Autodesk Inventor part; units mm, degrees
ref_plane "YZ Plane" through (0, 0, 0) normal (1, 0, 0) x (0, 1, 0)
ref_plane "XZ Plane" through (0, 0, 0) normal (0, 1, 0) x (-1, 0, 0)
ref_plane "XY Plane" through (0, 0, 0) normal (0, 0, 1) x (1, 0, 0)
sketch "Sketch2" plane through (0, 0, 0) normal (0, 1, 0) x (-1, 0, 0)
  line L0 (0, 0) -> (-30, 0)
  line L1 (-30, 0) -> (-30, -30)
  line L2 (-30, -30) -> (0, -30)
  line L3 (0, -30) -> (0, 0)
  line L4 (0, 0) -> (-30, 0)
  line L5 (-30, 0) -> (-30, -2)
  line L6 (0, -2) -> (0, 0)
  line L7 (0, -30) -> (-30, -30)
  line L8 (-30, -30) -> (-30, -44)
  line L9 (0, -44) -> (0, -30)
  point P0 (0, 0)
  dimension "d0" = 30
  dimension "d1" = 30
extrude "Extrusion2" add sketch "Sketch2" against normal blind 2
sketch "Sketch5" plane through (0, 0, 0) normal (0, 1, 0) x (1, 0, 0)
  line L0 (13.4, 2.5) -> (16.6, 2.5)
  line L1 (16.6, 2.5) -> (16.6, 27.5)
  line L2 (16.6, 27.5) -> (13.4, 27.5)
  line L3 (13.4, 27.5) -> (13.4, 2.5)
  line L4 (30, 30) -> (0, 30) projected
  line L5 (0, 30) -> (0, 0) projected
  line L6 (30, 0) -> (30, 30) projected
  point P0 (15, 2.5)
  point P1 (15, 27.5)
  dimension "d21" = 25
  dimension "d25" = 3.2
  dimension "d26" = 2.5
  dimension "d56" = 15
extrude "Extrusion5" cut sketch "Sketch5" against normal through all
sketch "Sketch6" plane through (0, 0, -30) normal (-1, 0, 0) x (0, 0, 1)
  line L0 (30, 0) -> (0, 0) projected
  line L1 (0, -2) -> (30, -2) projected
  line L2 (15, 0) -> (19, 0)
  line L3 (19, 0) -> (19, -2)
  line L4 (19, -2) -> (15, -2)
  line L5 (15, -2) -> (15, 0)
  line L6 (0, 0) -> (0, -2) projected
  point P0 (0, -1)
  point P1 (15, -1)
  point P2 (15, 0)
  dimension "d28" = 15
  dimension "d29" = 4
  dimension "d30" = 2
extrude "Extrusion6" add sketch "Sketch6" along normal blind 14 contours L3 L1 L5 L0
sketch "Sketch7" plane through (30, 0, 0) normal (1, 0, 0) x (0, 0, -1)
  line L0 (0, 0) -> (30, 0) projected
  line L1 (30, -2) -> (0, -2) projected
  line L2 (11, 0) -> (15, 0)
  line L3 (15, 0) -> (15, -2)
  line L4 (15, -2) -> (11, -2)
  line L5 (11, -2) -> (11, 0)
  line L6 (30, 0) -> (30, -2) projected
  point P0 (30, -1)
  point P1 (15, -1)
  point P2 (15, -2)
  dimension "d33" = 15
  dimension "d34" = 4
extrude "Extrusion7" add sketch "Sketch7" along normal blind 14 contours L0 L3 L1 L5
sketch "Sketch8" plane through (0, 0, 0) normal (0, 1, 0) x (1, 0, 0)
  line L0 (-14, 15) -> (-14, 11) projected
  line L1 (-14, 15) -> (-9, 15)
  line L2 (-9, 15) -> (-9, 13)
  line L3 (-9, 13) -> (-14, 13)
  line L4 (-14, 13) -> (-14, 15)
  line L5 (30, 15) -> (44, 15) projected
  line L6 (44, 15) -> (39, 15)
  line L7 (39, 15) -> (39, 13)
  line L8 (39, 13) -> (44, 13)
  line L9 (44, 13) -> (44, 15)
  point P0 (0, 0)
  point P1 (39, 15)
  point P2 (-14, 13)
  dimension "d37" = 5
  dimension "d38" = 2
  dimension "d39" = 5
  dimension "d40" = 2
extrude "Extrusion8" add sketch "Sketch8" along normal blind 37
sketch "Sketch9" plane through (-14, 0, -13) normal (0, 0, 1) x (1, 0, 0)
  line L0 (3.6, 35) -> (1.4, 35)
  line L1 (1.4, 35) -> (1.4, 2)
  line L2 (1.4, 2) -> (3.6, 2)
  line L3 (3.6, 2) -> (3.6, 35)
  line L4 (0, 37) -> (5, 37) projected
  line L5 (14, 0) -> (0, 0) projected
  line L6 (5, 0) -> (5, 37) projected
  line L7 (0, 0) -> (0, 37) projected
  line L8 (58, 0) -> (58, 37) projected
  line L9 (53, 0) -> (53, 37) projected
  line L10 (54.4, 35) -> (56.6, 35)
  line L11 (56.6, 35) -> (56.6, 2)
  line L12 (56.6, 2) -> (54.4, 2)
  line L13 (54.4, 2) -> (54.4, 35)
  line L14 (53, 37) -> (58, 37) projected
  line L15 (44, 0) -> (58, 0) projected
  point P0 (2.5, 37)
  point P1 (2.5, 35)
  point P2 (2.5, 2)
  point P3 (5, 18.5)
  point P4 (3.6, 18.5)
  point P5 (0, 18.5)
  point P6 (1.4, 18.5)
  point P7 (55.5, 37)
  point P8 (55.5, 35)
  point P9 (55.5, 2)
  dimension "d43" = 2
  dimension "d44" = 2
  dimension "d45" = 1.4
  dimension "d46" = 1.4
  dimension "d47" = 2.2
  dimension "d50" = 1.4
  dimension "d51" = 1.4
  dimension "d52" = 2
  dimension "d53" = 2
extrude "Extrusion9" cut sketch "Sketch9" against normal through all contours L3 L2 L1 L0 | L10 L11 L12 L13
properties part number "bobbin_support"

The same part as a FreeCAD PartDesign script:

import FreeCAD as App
import Part
import Sketcher

V = App.Vector
Q = App.Units.Quantity

doc = App.newDocument("Part")
body = doc.addObject("PartDesign::Body", "Body")

# Sketch on XZ plane
sketch1 = body.newObject("Sketcher::SketchObject", "Sketch")
sketch1.AttachmentSupport = (doc.getObject("XZ_Plane"), [""])
sketch1.MapMode = "FlatFace"
sketch1.addGeometry(Part.LineSegment(V(0, -30, 0), V(0, 0, 0)), False)
sketch1.addGeometry(Part.LineSegment(V(0, 0, 0), V(30, 0, 0)), False)
sketch1.addGeometry(Part.LineSegment(V(30, 0, 0), V(30, -30, 0)), False)
sketch1.addGeometry(Part.LineSegment(V(30, -30, 0), V(0, -30, 0)), False)
sketch1.addConstraint(Sketcher.Constraint("Coincident", 0, 2, 1, 1))
sketch1.addConstraint(Sketcher.Constraint("Coincident", 1, 2, 2, 1))
sketch1.addConstraint(Sketcher.Constraint("Coincident", 2, 2, 3, 1))
sketch1.addConstraint(Sketcher.Constraint("Coincident", 3, 2, 0, 1))
sketch1.addConstraint(Sketcher.Constraint("Vertical", 0))
sketch1.addConstraint(Sketcher.Constraint("Horizontal", 1))
sketch1.addConstraint(Sketcher.Constraint("Vertical", 2))
sketch1.addConstraint(Sketcher.Constraint("Horizontal", 3))
sketch1.addConstraint(Sketcher.Constraint("Coincident", 0, 2, -1, 1))
sketch1.addConstraint(Sketcher.Constraint("Equal", 3, 0))
sketch1.addConstraint(Sketcher.Constraint("DistanceX", 1, 1, 1, 2, Q("30 mm")))
pad1 = body.newObject("PartDesign::Pad", "Pad")
pad1.Profile = sketch1
pad1.Length = 2

# Sketch on XZ plane
sketch2 = body.newObject("Sketcher::SketchObject", "Sketch001")
sketch2.AttachmentSupport = (doc.getObject("XZ_Plane"), [""])
sketch2.MapMode = "FlatFace"
sketch2.addGeometry(Part.LineSegment(V(13.4, -27.5, 0), V(13.4, -2.5, 0)), False)
sketch2.addGeometry(Part.LineSegment(V(13.4, -2.5, 0), V(16.6, -2.5, 0)), False)
sketch2.addGeometry(Part.LineSegment(V(16.6, -2.5, 0), V(16.6, -27.5, 0)), False)
sketch2.addGeometry(Part.LineSegment(V(16.6, -27.5, 0), V(13.4, -27.5, 0)), False)
sketch2.addConstraint(Sketcher.Constraint("Coincident", 0, 2, 1, 1))
sketch2.addConstraint(Sketcher.Constraint("Coincident", 1, 2, 2, 1))
sketch2.addConstraint(Sketcher.Constraint("Coincident", 2, 2, 3, 1))
sketch2.addConstraint(Sketcher.Constraint("Coincident", 3, 2, 0, 1))
sketch2.addConstraint(Sketcher.Constraint("Vertical", 0))
sketch2.addConstraint(Sketcher.Constraint("Horizontal", 1))
sketch2.addConstraint(Sketcher.Constraint("Vertical", 2))
sketch2.addConstraint(Sketcher.Constraint("Horizontal", 3))
sketch2.addConstraint(Sketcher.Constraint("DistanceY", 0, 1, 0, 2, Q("25 mm")))
sketch2.addConstraint(Sketcher.Constraint("DistanceX", 1, 1, 1, 2, Q("3.2 mm")))
sketch2.addConstraint(Sketcher.Constraint("DistanceY", 0, 2, -1, 1, Q("2.5 mm")))
sketch2.addConstraint(Sketcher.Constraint("DistanceX", -1, 1, 0, 2, Q("13.4 mm")))
pocket1 = body.newObject("PartDesign::Pocket", "Pocket")
pocket1.Profile = sketch2
pocket1.Type = "ThroughAll"
pocket1.Reversed = True

# Sketch on YZ plane
sketch3 = body.newObject("Sketcher::SketchObject", "Sketch002")
sketch3.AttachmentSupport = (doc.getObject("YZ_Plane"), [""])
sketch3.MapMode = "FlatFace"
sketch3.addGeometry(Part.LineSegment(V(-2, -11, 0), V(0, -11, 0)), False)
sketch3.addGeometry(Part.LineSegment(V(0, -11, 0), V(0, -15, 0)), False)
sketch3.addGeometry(Part.LineSegment(V(0, -15, 0), V(-2, -15, 0)), False)
sketch3.addGeometry(Part.LineSegment(V(-2, -15, 0), V(-2, -11, 0)), False)
sketch3.addConstraint(Sketcher.Constraint("Coincident", 0, 2, 1, 1))
sketch3.addConstraint(Sketcher.Constraint("Coincident", 1, 2, 2, 1))
sketch3.addConstraint(Sketcher.Constraint("Coincident", 2, 2, 3, 1))
sketch3.addConstraint(Sketcher.Constraint("Coincident", 3, 2, 0, 1))
sketch3.addConstraint(Sketcher.Constraint("Horizontal", 0))
sketch3.addConstraint(Sketcher.Constraint("Vertical", 1))
sketch3.addConstraint(Sketcher.Constraint("Horizontal", 2))
sketch3.addConstraint(Sketcher.Constraint("Vertical", 3))
sketch3.addConstraint(Sketcher.Constraint("PointOnObject", 0, 2, -2))
sketch3.addConstraint(Sketcher.Constraint("DistanceX", 0, 1, 0, 2, Q("2 mm")))
sketch3.addConstraint(Sketcher.Constraint("DistanceY", 1, 2, 1, 1, Q("4 mm")))
sketch3.addConstraint(Sketcher.Constraint("DistanceY", 1, 2, -1, 1, Q("15 mm")))
pad2 = body.newObject("PartDesign::Pad", "Pad001")
pad2.Profile = sketch3
pad2.Length = 14
pad2.Reversed = True

# Sketch on YZ plane
sketch4 = body.newObject("Sketcher::SketchObject", "Sketch003")
sketch4.AttachmentSupport = (doc.getObject("YZ_Plane"), [""])
sketch4.MapMode = "FlatFace"
sketch4.AttachmentOffset = App.Placement(V(0, 0, 30), App.Rotation())
sketch4.addGeometry(Part.LineSegment(V(0, -15, 0), V(0, -11, 0)), False)
sketch4.addGeometry(Part.LineSegment(V(0, -11, 0), V(-2, -11, 0)), False)
sketch4.addGeometry(Part.LineSegment(V(-2, -11, 0), V(-2, -15, 0)), False)
sketch4.addGeometry(Part.LineSegment(V(-2, -15, 0), V(0, -15, 0)), False)
sketch4.addConstraint(Sketcher.Constraint("Coincident", 0, 2, 1, 1))
sketch4.addConstraint(Sketcher.Constraint("Coincident", 1, 2, 2, 1))
sketch4.addConstraint(Sketcher.Constraint("Coincident", 2, 2, 3, 1))
sketch4.addConstraint(Sketcher.Constraint("Coincident", 3, 2, 0, 1))
sketch4.addConstraint(Sketcher.Constraint("Vertical", 0))
sketch4.addConstraint(Sketcher.Constraint("Horizontal", 1))
sketch4.addConstraint(Sketcher.Constraint("Vertical", 2))
sketch4.addConstraint(Sketcher.Constraint("Horizontal", 3))
sketch4.addConstraint(Sketcher.Constraint("PointOnObject", 0, 2, -2))
sketch4.addConstraint(Sketcher.Constraint("DistanceY", 0, 1, 0, 2, Q("4 mm")))
sketch4.addConstraint(Sketcher.Constraint("DistanceY", 2, 2, -1, 1, Q("15 mm")))
sketch4.addConstraint(Sketcher.Constraint("DistanceX", 1, 2, 1, 1, Q("2 mm")))
pad3 = body.newObject("PartDesign::Pad", "Pad002")
pad3.Profile = sketch4
pad3.Length = 14

# Sketch on XZ plane
sketch5 = body.newObject("Sketcher::SketchObject", "Sketch004")
sketch5.AttachmentSupport = (doc.getObject("XZ_Plane"), [""])
sketch5.MapMode = "FlatFace"
sketch5.addGeometry(Part.LineSegment(V(-9, -15, 0), V(-14, -15, 0)), False)
sketch5.addGeometry(Part.LineSegment(V(-14, -15, 0), V(-14, -13, 0)), False)
sketch5.addGeometry(Part.LineSegment(V(-14, -13, 0), V(-9, -13, 0)), False)
sketch5.addGeometry(Part.LineSegment(V(-9, -13, 0), V(-9, -15, 0)), False)
sketch5.addGeometry(Part.LineSegment(V(44, -15, 0), V(39, -15, 0)), False)
sketch5.addGeometry(Part.LineSegment(V(39, -15, 0), V(39, -13, 0)), False)
sketch5.addGeometry(Part.LineSegment(V(39, -13, 0), V(44, -13, 0)), False)
sketch5.addGeometry(Part.LineSegment(V(44, -13, 0), V(44, -15, 0)), False)
sketch5.addConstraint(Sketcher.Constraint("Coincident", 0, 2, 1, 1))
sketch5.addConstraint(Sketcher.Constraint("Coincident", 1, 2, 2, 1))
sketch5.addConstraint(Sketcher.Constraint("Coincident", 2, 2, 3, 1))
sketch5.addConstraint(Sketcher.Constraint("Coincident", 3, 2, 0, 1))
sketch5.addConstraint(Sketcher.Constraint("Coincident", 4, 2, 5, 1))
sketch5.addConstraint(Sketcher.Constraint("Coincident", 5, 2, 6, 1))
sketch5.addConstraint(Sketcher.Constraint("Coincident", 6, 2, 7, 1))
sketch5.addConstraint(Sketcher.Constraint("Coincident", 7, 2, 4, 1))
sketch5.addConstraint(Sketcher.Constraint("Horizontal", 0))
sketch5.addConstraint(Sketcher.Constraint("Vertical", 1))
sketch5.addConstraint(Sketcher.Constraint("Horizontal", 2))
sketch5.addConstraint(Sketcher.Constraint("Vertical", 3))
sketch5.addConstraint(Sketcher.Constraint("Horizontal", 4))
sketch5.addConstraint(Sketcher.Constraint("Vertical", 5))
sketch5.addConstraint(Sketcher.Constraint("Horizontal", 6))
sketch5.addConstraint(Sketcher.Constraint("Vertical", 7))
sketch5.addConstraint(Sketcher.Constraint("Horizontal", 3, 2, 4, 2))
sketch5.addConstraint(Sketcher.Constraint("Horizontal", 2, 2, 5, 2))
sketch5.addConstraint(Sketcher.Constraint("Equal", 2, 4))
sketch5.addConstraint(Sketcher.Constraint("DistanceX", 0, 2, 0, 1, Q("5 mm")))
sketch5.addConstraint(Sketcher.Constraint("DistanceY", 1, 1, 1, 2, Q("2 mm")))
sketch5.addConstraint(Sketcher.Constraint("DistanceX", 0, 2, -1, 1, Q("14 mm")))
sketch5.addConstraint(Sketcher.Constraint("DistanceY", 0, 2, -1, 1, Q("15 mm")))
sketch5.addConstraint(Sketcher.Constraint("DistanceX", -1, 1, 4, 2, Q("39 mm")))
pad4 = body.newObject("PartDesign::Pad", "Pad003")
pad4.Profile = sketch5
pad4.Length = 37
pad4.Reversed = True

# Sketch on XY plane
sketch6 = body.newObject("Sketcher::SketchObject", "Sketch005")
sketch6.AttachmentSupport = (doc.getObject("XY_Plane"), [""])
sketch6.MapMode = "FlatFace"
sketch6.AttachmentOffset = App.Placement(V(0, 0, -13), App.Rotation())
sketch6.addGeometry(Part.LineSegment(V(-10.4, 2, 0), V(-10.4, 35, 0)), False)
sketch6.addGeometry(Part.LineSegment(V(-10.4, 35, 0), V(-12.6, 35, 0)), False)
sketch6.addGeometry(Part.LineSegment(V(-12.6, 35, 0), V(-12.6, 2, 0)), False)
sketch6.addGeometry(Part.LineSegment(V(-12.6, 2, 0), V(-10.4, 2, 0)), False)
sketch6.addGeometry(Part.LineSegment(V(42.6, 35, 0), V(40.4, 35, 0)), False)
sketch6.addGeometry(Part.LineSegment(V(40.4, 35, 0), V(40.4, 2, 0)), False)
sketch6.addGeometry(Part.LineSegment(V(40.4, 2, 0), V(42.6, 2, 0)), False)
sketch6.addGeometry(Part.LineSegment(V(42.6, 2, 0), V(42.6, 35, 0)), False)
sketch6.addConstraint(Sketcher.Constraint("Coincident", 0, 2, 1, 1))
sketch6.addConstraint(Sketcher.Constraint("Coincident", 1, 2, 2, 1))
sketch6.addConstraint(Sketcher.Constraint("Coincident", 2, 2, 3, 1))
sketch6.addConstraint(Sketcher.Constraint("Coincident", 3, 2, 0, 1))
sketch6.addConstraint(Sketcher.Constraint("Coincident", 4, 2, 5, 1))
sketch6.addConstraint(Sketcher.Constraint("Coincident", 5, 2, 6, 1))
sketch6.addConstraint(Sketcher.Constraint("Coincident", 6, 2, 7, 1))
sketch6.addConstraint(Sketcher.Constraint("Coincident", 7, 2, 4, 1))
sketch6.addConstraint(Sketcher.Constraint("Vertical", 0))
sketch6.addConstraint(Sketcher.Constraint("Horizontal", 1))
sketch6.addConstraint(Sketcher.Constraint("Vertical", 2))
sketch6.addConstraint(Sketcher.Constraint("Horizontal", 3))
sketch6.addConstraint(Sketcher.Constraint("Horizontal", 4))
sketch6.addConstraint(Sketcher.Constraint("Vertical", 5))
sketch6.addConstraint(Sketcher.Constraint("Horizontal", 6))
sketch6.addConstraint(Sketcher.Constraint("Vertical", 7))
sketch6.addConstraint(Sketcher.Constraint("Horizontal", 1, 2, 4, 2))
sketch6.addConstraint(Sketcher.Constraint("Horizontal", 3, 2, 5, 2))
sketch6.addConstraint(Sketcher.Constraint("Equal", 3, 4))
sketch6.addConstraint(Sketcher.Constraint("DistanceX", 1, 2, 1, 1, Q("2.2 mm")))
sketch6.addConstraint(Sketcher.Constraint("DistanceY", -1, 1, 2, 2, Q("2 mm")))
sketch6.addConstraint(Sketcher.Constraint("DistanceY", 0, 1, 0, 2, Q("33 mm")))
sketch6.addConstraint(Sketcher.Constraint("DistanceX", 1, 2, 4, 2, Q("53 mm")))
sketch6.addConstraint(Sketcher.Constraint("DistanceX", 0, 2, -1, 1, Q("10.4 mm")))
pocket2 = body.newObject("PartDesign::Pocket", "Pocket001")
pocket2.Profile = sketch6
pocket2.Type = "ThroughAll"

doc.recompute()
